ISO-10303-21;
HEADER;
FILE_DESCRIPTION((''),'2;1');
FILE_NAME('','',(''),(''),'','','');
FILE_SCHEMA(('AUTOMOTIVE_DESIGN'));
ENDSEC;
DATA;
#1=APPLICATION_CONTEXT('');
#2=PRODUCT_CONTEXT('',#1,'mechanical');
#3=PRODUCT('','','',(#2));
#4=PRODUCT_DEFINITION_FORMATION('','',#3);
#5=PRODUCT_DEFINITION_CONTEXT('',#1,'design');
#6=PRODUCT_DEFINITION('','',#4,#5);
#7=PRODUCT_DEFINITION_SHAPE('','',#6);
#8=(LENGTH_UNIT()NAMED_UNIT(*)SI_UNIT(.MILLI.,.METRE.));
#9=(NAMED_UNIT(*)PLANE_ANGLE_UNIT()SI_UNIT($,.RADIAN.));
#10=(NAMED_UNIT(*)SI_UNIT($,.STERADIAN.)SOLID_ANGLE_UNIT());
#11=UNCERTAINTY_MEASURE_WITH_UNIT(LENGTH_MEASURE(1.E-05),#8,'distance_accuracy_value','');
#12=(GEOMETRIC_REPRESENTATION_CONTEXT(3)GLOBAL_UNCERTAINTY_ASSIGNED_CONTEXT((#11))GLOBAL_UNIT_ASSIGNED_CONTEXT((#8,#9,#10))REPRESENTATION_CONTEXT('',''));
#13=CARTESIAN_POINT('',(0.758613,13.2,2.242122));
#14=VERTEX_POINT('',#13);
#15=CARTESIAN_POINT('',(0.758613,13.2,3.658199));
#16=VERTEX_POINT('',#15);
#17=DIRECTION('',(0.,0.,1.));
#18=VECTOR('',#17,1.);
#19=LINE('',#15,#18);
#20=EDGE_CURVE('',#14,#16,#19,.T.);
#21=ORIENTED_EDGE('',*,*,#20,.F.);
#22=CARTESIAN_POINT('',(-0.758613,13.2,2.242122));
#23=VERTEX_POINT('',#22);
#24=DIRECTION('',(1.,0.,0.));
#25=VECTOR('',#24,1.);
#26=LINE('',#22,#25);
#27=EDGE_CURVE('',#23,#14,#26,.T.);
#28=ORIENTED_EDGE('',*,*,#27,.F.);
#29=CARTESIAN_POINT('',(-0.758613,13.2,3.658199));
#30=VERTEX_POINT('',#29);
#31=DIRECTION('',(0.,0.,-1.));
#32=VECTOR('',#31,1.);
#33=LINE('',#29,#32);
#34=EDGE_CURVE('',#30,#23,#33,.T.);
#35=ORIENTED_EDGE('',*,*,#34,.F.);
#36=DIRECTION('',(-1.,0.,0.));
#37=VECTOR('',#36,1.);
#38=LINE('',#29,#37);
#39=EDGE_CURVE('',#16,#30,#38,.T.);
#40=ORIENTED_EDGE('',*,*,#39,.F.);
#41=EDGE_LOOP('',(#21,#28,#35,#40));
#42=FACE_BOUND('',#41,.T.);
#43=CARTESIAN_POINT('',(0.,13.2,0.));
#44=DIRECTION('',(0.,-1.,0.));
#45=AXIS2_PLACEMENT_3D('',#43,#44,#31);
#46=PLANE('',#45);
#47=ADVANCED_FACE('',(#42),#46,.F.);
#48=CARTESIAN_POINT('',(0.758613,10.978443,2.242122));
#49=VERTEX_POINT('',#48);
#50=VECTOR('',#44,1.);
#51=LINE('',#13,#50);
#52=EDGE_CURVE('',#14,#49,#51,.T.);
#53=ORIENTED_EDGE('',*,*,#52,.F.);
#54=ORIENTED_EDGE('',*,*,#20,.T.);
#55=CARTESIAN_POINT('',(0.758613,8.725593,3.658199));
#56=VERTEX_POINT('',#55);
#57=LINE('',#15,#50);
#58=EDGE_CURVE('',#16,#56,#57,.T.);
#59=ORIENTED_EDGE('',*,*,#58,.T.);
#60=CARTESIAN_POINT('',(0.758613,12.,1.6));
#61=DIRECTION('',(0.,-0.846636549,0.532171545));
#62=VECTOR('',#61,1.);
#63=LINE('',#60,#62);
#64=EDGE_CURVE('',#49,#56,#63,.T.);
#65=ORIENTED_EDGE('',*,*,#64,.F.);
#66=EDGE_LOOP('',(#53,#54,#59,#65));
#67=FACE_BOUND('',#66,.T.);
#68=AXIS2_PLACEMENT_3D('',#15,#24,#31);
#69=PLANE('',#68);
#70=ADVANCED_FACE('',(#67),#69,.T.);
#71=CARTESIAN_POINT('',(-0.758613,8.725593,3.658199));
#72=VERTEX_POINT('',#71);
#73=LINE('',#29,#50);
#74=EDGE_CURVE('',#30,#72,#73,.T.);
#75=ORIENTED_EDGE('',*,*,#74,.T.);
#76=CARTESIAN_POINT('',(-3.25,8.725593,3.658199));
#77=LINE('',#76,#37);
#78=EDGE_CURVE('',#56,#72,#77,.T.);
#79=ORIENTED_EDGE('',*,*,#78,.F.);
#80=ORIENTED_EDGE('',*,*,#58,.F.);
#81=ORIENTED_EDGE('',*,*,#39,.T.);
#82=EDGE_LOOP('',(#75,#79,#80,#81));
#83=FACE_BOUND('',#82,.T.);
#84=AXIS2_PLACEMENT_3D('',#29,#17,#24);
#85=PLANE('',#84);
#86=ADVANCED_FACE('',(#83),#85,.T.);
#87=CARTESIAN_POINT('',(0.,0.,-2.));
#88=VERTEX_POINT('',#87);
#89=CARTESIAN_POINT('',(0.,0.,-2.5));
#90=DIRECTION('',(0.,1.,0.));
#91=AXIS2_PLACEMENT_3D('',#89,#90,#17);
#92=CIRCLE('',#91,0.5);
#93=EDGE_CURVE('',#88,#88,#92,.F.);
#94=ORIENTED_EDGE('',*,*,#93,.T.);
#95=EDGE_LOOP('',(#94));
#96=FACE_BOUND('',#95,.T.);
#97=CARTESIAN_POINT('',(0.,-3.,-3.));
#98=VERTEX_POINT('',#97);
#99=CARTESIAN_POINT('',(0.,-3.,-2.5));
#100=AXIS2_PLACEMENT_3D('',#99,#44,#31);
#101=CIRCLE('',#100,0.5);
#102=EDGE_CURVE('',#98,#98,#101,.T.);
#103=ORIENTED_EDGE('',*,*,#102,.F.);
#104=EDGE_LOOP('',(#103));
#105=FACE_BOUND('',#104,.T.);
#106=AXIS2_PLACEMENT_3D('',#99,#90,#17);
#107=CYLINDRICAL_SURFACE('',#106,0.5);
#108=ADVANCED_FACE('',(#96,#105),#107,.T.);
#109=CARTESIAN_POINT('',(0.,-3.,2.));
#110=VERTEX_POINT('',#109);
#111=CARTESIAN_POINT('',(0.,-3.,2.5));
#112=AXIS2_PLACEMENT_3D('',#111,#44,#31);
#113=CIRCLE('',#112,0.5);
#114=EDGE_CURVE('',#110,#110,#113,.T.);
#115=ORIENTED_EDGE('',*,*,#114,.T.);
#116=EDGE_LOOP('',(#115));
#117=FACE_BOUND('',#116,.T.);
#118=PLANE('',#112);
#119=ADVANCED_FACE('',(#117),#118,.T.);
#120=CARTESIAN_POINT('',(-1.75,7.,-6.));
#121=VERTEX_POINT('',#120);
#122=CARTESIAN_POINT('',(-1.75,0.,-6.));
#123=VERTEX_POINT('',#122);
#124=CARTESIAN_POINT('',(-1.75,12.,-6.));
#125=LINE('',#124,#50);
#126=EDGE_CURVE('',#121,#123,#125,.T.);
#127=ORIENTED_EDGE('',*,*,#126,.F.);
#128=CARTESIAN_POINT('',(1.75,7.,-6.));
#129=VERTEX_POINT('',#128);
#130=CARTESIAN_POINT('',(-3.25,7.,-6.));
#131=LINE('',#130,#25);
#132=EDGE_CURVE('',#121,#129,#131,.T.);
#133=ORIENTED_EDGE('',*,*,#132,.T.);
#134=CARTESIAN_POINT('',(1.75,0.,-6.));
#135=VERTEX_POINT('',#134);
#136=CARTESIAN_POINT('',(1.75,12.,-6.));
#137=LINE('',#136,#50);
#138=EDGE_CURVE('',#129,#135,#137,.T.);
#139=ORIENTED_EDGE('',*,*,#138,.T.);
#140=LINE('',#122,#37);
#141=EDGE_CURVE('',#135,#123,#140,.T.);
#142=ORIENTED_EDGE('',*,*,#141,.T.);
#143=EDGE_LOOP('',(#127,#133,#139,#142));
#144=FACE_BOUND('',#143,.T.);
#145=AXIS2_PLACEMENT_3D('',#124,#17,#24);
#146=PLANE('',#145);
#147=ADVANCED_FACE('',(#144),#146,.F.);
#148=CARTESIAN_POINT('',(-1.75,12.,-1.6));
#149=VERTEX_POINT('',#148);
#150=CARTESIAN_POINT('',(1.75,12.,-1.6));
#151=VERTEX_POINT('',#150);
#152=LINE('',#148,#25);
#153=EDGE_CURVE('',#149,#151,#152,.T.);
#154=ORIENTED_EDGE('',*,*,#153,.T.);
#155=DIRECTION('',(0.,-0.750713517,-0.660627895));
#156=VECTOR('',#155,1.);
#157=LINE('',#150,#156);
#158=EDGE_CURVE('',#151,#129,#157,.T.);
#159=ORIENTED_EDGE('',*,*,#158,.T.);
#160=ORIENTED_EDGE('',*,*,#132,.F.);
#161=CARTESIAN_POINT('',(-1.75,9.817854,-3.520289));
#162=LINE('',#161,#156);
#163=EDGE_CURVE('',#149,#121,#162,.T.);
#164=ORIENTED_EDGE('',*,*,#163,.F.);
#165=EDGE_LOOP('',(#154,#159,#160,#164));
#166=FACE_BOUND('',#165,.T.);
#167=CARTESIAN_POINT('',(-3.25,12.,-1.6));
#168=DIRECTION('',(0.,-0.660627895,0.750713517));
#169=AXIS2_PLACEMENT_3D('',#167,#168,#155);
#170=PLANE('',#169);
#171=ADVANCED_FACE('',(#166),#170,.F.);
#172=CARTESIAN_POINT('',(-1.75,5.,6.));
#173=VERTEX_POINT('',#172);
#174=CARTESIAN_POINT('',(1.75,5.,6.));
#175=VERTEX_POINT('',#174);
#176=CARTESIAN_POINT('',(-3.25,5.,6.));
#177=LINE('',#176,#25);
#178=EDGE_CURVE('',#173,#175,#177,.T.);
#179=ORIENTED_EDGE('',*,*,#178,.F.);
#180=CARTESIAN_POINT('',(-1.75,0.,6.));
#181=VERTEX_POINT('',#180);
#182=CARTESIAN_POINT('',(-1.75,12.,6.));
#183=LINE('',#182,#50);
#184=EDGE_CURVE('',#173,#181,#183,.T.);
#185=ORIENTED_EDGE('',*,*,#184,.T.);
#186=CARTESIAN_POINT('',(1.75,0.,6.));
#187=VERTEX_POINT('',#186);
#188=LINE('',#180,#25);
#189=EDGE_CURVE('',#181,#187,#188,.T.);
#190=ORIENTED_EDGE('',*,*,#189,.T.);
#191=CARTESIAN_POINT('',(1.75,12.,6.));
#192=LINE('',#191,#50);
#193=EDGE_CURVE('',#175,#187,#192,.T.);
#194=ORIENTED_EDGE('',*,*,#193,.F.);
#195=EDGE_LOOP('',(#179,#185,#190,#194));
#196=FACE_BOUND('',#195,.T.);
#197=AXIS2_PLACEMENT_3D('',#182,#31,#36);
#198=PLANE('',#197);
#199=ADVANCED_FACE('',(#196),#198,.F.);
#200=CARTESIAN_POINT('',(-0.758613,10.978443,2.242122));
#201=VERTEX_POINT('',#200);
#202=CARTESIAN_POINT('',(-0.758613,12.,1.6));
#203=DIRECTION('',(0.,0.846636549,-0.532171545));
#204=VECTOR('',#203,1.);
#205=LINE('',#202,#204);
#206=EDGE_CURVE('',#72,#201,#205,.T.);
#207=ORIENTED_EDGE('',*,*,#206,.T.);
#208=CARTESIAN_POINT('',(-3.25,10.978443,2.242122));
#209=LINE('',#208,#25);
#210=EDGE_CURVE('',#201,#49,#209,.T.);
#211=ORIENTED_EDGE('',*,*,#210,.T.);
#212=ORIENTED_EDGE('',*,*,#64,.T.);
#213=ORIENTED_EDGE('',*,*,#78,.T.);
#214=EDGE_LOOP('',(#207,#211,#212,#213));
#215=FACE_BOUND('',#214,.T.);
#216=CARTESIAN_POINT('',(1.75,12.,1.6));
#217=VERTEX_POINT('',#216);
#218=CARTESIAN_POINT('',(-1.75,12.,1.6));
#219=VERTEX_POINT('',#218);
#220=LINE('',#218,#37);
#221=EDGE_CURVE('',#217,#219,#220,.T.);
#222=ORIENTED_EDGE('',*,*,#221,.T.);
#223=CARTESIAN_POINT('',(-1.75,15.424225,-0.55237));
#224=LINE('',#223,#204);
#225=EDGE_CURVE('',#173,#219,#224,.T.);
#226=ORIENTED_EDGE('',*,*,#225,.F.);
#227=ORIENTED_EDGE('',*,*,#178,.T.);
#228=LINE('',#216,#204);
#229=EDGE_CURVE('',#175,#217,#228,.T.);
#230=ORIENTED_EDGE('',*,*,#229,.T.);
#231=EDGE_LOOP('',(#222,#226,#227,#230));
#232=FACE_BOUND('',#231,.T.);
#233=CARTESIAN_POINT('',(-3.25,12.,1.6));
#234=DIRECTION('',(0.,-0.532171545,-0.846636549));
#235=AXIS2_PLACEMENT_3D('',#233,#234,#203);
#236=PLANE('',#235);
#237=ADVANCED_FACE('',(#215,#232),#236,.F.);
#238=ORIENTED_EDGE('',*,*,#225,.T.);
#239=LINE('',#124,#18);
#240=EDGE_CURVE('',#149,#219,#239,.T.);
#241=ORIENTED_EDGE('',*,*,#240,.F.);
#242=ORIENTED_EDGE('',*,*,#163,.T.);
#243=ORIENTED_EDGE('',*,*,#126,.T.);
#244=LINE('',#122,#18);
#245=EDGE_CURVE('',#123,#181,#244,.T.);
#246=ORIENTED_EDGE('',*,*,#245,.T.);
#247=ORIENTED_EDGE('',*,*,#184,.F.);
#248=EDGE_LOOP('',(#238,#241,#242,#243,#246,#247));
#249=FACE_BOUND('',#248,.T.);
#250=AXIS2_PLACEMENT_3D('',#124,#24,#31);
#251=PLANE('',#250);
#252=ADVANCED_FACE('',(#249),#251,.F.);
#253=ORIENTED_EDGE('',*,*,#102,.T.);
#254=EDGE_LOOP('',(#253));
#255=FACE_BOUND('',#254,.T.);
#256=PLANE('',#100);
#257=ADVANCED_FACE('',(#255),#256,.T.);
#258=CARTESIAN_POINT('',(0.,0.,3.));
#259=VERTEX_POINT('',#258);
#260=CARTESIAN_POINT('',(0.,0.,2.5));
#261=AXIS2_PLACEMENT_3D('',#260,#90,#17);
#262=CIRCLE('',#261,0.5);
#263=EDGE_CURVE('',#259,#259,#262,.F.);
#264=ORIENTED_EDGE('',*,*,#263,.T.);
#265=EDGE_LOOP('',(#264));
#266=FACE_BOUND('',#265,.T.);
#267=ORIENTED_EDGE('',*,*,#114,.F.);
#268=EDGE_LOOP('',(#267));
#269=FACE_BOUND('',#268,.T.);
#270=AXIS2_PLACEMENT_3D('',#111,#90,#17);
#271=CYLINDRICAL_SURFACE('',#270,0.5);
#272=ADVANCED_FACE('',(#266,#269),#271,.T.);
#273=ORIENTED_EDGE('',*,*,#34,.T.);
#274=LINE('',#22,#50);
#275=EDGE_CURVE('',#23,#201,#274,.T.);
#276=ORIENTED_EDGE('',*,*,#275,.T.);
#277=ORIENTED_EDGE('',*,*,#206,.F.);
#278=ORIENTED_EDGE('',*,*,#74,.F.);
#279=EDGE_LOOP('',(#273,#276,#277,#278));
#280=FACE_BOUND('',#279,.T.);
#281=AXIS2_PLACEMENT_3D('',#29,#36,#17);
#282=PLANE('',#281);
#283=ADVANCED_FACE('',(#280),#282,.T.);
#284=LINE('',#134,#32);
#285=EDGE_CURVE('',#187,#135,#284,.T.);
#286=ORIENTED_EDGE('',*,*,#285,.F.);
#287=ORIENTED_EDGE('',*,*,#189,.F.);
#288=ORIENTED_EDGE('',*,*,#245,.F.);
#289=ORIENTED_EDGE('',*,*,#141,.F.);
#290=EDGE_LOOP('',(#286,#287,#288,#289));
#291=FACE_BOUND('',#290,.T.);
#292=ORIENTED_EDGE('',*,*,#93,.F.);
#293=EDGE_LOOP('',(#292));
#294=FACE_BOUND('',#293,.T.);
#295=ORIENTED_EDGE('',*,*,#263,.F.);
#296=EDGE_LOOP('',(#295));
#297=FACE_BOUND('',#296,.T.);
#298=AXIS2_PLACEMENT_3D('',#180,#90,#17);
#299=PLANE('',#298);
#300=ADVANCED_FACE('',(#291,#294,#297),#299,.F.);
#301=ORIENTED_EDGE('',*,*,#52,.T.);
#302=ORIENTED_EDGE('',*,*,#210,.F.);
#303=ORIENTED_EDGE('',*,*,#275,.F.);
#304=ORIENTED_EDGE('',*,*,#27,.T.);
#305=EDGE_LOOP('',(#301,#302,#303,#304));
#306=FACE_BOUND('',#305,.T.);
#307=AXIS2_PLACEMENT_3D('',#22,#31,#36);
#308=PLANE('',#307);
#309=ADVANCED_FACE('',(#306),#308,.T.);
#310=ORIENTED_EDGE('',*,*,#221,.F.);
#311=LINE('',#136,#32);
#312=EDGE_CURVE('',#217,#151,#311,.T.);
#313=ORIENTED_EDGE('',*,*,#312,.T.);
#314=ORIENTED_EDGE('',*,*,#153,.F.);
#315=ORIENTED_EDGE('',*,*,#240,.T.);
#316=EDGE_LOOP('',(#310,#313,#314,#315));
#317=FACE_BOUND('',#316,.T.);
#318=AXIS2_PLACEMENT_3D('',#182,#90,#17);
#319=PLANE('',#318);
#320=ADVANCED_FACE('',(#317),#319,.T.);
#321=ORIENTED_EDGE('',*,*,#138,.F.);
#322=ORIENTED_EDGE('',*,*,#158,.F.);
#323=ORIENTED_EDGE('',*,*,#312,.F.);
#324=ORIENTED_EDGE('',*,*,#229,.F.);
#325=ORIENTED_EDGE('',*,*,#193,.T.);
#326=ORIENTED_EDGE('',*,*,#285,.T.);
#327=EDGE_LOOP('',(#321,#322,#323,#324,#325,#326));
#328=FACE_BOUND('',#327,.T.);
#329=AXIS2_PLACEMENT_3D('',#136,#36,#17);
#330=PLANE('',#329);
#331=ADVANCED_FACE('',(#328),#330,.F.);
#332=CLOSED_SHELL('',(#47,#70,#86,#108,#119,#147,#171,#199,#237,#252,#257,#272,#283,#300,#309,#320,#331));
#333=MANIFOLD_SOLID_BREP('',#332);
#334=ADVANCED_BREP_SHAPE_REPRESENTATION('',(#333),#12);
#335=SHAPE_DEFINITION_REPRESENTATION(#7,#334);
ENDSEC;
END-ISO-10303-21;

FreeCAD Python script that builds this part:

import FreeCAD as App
import Part
import Sketcher

V = App.Vector
Q = App.Units.Quantity


def add_polygon(sketch, points):
    """Adds a closed chain of lines whose ends are joined by coincident constraints."""
    first, n = sketch.GeometryCount, len(points)
    for a, b in zip(points, points[1:] + points[:1]):
        sketch.addGeometry(Part.LineSegment(App.Vector(*a, 0), App.Vector(*b, 0)), False)
    for i in range(n):
        sketch.addConstraint(Sketcher.Constraint("Coincident", first + i, 2, first + (i + 1) % n, 1))

doc = App.newDocument("Part")
params = doc.addObject("Spreadsheet::Sheet", "Params")
for row, (alias, value) in enumerate([
    ("sketch1_height", "12 mm"),
    ("sketch1_width", "3.5 mm"),
    ("pad1_length", "12 mm"),
    ("sketch2_diameter", "1 mm"),
    ("pad2_length", "3 mm"),
    ("sketch3_width", "7 mm"),
    ("sketch3_width2", "5 mm"),
    ("sketch3_height", "4.4 mm"),
    ("pocket1_length", "5 mm"),
    ("pad3_length", "13.2 mm"),
], start=1):
    params.set(f"A{row}", alias)
    params.set(f"B{row}", "=" + value)
    params.setAlias(f"B{row}", alias)

body = doc.addObject("PartDesign::Body", "Body")

# Sketch on XZ plane
sketch1 = body.newObject("Sketcher::SketchObject", "Sketch")
sketch1.AttachmentSupport = (doc.getObject("XZ_Plane"), [""])
sketch1.MapMode = "FlatFace"
add_polygon(sketch1, [(-1.8, -6), (-1.8, 6), (1.8, 6), (1.8, -6)])  # lines 0-3
sketch1.addConstraint(Sketcher.Constraint("Vertical", 0))
sketch1.addConstraint(Sketcher.Constraint("Horizontal", 1))
sketch1.addConstraint(Sketcher.Constraint("Vertical", 2))
sketch1.addConstraint(Sketcher.Constraint("Horizontal", 3))
sketch1.addConstraint(Sketcher.Constraint("Symmetric", 0, 2, 2, 2, -1, 1))
sketch1.addConstraint(Sketcher.Constraint("DistanceY", 0, 1, 0, 2, Q("12 mm")))
sketch1.addConstraint(Sketcher.Constraint("DistanceX", 1, 1, 1, 2, Q("3.5 mm")))
sketch1.setExpression("Constraints[9]", "Params.sketch1_height")
sketch1.setExpression("Constraints[10]", "Params.sketch1_width")
pad1 = body.newObject("PartDesign::Pad", "Pad")
pad1.Profile = sketch1
pad1.setExpression("Length", "Params.pad1_length")
pad1.Reversed = True

# Sketch on XZ plane
sketch2 = body.newObject("Sketcher::SketchObject", "Sketch001")
sketch2.AttachmentSupport = (doc.getObject("XZ_Plane"), [""])
sketch2.MapMode = "FlatFace"
sketch2.addGeometry(Part.Circle(V(0, 2.5, 0), V(0, 0, 1), 0.5), False)
sketch2.addGeometry(Part.Circle(V(0, -2.5, 0), V(0, 0, 1), 0.5), False)
sketch2.addConstraint(Sketcher.Constraint("Equal", 0, 1))
sketch2.addConstraint(Sketcher.Constraint("Symmetric", 0, 3, 1, 3, -1, 1))
sketch2.addConstraint(Sketcher.Constraint("PointOnObject", 0, 3, -2))
sketch2.addConstraint(Sketcher.Constraint("Diameter", 0, Q("1 mm")))
sketch2.addConstraint(Sketcher.Constraint("DistanceY", 1, 3, 0, 3, Q("5 mm")))
sketch2.setExpression("Constraints[3]", "Params.sketch2_diameter")
pad2 = body.newObject("PartDesign::Pad", "Pad001")
pad2.Profile = sketch2
pad2.setExpression("Length", "Params.pad2_length")

# Sketch on YZ plane
sketch3 = body.newObject("Sketcher::SketchObject", "Sketch002")
sketch3.AttachmentSupport = (doc.getObject("YZ_Plane"), [""])
sketch3.MapMode = "FlatFace"
sketch3.AttachmentOffset = App.Placement(V(0, 0, 1.75), App.Rotation())
add_polygon(sketch3, [(5, 6), (12, 1.6), (12, 6)])  # lines 0-2
add_polygon(sketch3, [(12, -1.6), (7, -6), (12, -6)])  # lines 3-5
sketch3.addConstraint(Sketcher.Constraint("Vertical", 1))
sketch3.addConstraint(Sketcher.Constraint("Horizontal", 2))
sketch3.addConstraint(Sketcher.Constraint("Horizontal", 4))
sketch3.addConstraint(Sketcher.Constraint("Vertical", 5))
sketch3.addConstraint(Sketcher.Constraint("Symmetric", 1, 2, 4, 2, -1))
sketch3.addConstraint(Sketcher.Constraint("Equal", 1, 5))
sketch3.addConstraint(Sketcher.Constraint("DistanceX", 2, 2, 2, 1, Q("7 mm")))
sketch3.addConstraint(Sketcher.Constraint("DistanceX", 4, 1, 4, 2, Q("5 mm")))
sketch3.addConstraint(Sketcher.Constraint("DistanceY", 1, 1, 1, 2, Q("4.4 mm")))
sketch3.addConstraint(Sketcher.Constraint("DistanceX", -1, 1, 0, 2, Q("12 mm")))
sketch3.addConstraint(Sketcher.Constraint("DistanceY", -1, 1, 1, 2, Q("6 mm")))
sketch3.setExpression("Constraints[12]", "Params.sketch3_width")
sketch3.setExpression("Constraints[13]", "Params.sketch3_width2")
sketch3.setExpression("Constraints[14]", "Params.sketch3_height")
pocket1 = body.newObject("PartDesign::Pocket", "Pocket")
pocket1.Profile = sketch3
pocket1.setExpression("Length", "Params.pocket1_length")

# Sketch on XZ plane
sketch4 = body.newObject("Sketcher::SketchObject", "Sketch003")
sketch4.AttachmentSupport = (doc.getObject("XZ_Plane"), [""])
sketch4.MapMode = "FlatFace"
add_polygon(sketch4, [(-0.8, 3.7), (-0.8, 2.2), (0.8, 2.2), (0.8, 3.7)])  # lines 0-3
sketch4.addConstraint(Sketcher.Constraint("Vertical", 0))
sketch4.addConstraint(Sketcher.Constraint("Horizontal", 1))
sketch4.addConstraint(Sketcher.Constraint("Vertical", 2))
sketch4.addConstraint(Sketcher.Constraint("Horizontal", 3))
sketch4.addConstraint(Sketcher.Constraint("DistanceY", -1, 1, 2, 2, Q("3.658199 mm")))
sketch4.addConstraint(Sketcher.Constraint("DistanceX", 1, 1, 1, 2, Q("1.517225 mm")))
sketch4.addConstraint(Sketcher.Constraint("DistanceY", 0, 2, 0, 1, Q("1.416077 mm")))
sketch4.addConstraint(Sketcher.Constraint("DistanceX", 0, 2, -1, 1, Q("0.758613 mm")))
pad3 = body.newObject("PartDesign::Pad", "Pad002")
pad3.Profile = sketch4
pad3.setExpression("Length", "Params.pad3_length")
pad3.Reversed = True

doc.recompute()
